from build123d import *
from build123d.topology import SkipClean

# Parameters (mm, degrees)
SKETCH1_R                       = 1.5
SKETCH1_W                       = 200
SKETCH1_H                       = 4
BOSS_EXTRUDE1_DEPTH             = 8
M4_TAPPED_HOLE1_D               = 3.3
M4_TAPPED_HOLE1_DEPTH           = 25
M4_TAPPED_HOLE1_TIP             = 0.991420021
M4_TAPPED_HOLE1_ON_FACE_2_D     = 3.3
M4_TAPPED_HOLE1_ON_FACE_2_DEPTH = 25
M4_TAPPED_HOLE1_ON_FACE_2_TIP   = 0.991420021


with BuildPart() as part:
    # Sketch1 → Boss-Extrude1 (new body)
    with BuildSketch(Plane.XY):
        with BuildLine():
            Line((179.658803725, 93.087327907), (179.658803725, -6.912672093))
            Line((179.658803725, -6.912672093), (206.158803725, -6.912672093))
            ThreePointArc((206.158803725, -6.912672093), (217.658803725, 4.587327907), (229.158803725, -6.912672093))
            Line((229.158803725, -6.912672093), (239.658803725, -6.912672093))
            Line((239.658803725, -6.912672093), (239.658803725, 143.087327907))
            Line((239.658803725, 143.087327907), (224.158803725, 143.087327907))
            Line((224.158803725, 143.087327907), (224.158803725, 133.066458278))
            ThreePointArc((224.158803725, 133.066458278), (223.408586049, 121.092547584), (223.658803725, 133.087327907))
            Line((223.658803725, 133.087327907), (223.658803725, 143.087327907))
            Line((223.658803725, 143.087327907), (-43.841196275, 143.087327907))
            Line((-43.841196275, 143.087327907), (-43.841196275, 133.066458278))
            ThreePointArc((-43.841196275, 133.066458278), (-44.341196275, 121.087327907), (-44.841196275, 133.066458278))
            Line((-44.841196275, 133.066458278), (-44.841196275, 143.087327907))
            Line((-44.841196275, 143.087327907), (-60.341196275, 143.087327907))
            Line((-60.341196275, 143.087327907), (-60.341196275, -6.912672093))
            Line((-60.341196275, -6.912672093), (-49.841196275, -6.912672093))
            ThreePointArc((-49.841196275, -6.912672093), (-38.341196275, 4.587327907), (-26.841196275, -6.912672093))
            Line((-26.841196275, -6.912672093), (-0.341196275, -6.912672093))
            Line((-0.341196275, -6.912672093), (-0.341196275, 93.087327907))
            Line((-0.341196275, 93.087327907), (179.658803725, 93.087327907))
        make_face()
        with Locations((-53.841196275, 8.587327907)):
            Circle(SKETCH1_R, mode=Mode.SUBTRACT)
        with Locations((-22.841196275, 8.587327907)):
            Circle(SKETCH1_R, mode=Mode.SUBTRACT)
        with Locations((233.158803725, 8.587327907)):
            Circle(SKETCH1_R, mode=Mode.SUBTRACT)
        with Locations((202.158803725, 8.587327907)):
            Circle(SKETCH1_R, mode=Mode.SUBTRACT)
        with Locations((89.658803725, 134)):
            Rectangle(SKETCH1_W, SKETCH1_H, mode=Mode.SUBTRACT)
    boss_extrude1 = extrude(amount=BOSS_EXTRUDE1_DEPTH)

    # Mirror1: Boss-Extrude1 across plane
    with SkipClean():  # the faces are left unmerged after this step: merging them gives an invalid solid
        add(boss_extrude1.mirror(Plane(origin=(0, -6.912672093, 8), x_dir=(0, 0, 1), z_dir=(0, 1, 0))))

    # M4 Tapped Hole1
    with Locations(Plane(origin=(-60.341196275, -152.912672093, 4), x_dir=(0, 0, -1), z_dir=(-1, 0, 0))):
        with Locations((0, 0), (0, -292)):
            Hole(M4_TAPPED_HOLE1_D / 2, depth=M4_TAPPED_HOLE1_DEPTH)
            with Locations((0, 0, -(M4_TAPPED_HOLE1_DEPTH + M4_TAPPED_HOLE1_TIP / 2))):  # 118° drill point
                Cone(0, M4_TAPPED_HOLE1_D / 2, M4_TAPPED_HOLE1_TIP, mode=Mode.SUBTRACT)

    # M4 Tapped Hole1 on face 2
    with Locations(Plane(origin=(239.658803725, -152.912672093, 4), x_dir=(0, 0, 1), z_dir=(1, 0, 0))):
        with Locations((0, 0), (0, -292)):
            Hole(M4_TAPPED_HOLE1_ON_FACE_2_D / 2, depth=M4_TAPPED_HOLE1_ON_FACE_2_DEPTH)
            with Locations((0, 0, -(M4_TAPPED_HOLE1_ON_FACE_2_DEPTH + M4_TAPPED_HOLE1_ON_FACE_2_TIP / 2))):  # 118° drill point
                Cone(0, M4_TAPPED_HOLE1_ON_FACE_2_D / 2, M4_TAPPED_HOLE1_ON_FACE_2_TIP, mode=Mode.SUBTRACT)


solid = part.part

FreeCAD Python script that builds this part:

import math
import FreeCAD as App
import Part
import Sketcher
from FreeCAD import Vector
Q = App.Units.Quantity


def add_polygon(sketch, points):
    """Adds a closed chain of lines whose ends are joined by coincident constraints."""
    first, n = sketch.GeometryCount, len(points)
    for a, b in zip(points, points[1:] + points[:1]):
        sketch.addGeometry(Part.LineSegment(App.Vector(*a, 0), App.Vector(*b, 0)), False)
    for i in range(n):
        sketch.addConstraint(Sketcher.Constraint("Coincident", first + i, 2, first + (i + 1) % n, 1))

doc = App.newDocument("Part")
body = doc.addObject("PartDesign::Body", "Body")

# Sketch on XY plane
sketch1 = doc.addObject("Sketcher::SketchObject", "Sketch")
body.addObject(sketch1)
sketch1.AttachmentSupport = (doc.XY_Plane, [""])
sketch1.MapMode = "FlatFace"
sketch1.addGeometry(Part.LineSegment(Vector(179.7, 93.1, 0), Vector(179.7, -6.9, 0)), False)  # 0
sketch1.addGeometry(Part.LineSegment(Vector(179.7, -6.9, 0), Vector(206.2, -6.9, 0)), False)  # 1
sketch1.addGeometry(Part.ArcOfCircle(Part.Circle(Vector(217.7, -6.9, 0), Vector(0, 0, 1), 11.5), math.radians(0), math.radians(180)), False)  # 2
sketch1.addGeometry(Part.LineSegment(Vector(229.2, -6.9, 0), Vector(239.7, -6.9, 0)), False)  # 3
sketch1.addGeometry(Part.LineSegment(Vector(239.7, -6.9, 0), Vector(239.7, 143.1, 0)), False)  # 4
sketch1.addGeometry(Part.LineSegment(Vector(239.7, 143.1, 0), Vector(224.2, 143.1, 0)), False)  # 5
sketch1.addGeometry(Part.LineSegment(Vector(224.2, 143.1, 0), Vector(224.2, 133.1, 0)), False)  # 6
sketch1.addGeometry(Part.ArcOfCircle(Part.Circle(Vector(223.7, 127.1, 0), Vector(0, 0, 1), 6), math.radians(90), math.radians(445)), False)  # 7
sketch1.addGeometry(Part.LineSegment(Vector(223.7, 133.1, 0), Vector(223.7, 143.1, 0)), False)  # 8
sketch1.addGeometry(Part.LineSegment(Vector(223.7, 143.1, 0), Vector(-43.8, 143.1, 0)), False)  # 9
sketch1.addGeometry(Part.LineSegment(Vector(-43.8, 143.1, 0), Vector(-43.8, 133.1, 0)), False)  # 10
sketch1.addGeometry(Part.ArcOfCircle(Part.Circle(Vector(-44.3, 127.1, 0), Vector(0, 0, 1), 6), math.radians(95), math.radians(445)), False)  # 11
sketch1.addGeometry(Part.LineSegment(Vector(-44.8, 133.1, 0), Vector(-44.8, 143.1, 0)), False)  # 12
sketch1.addGeometry(Part.LineSegment(Vector(-44.8, 143.1, 0), Vector(-60.3, 143.1, 0)), False)  # 13
sketch1.addGeometry(Part.LineSegment(Vector(-60.3, 143.1, 0), Vector(-60.3, -6.9, 0)), False)  # 14
sketch1.addGeometry(Part.LineSegment(Vector(-60.3, -6.9, 0), Vector(-49.8, -6.9, 0)), False)  # 15
sketch1.addGeometry(Part.ArcOfCircle(Part.Circle(Vector(-38.3, -6.9, 0), Vector(0, 0, 1), 11.5), math.radians(0), math.radians(180)), False)  # 16
sketch1.addGeometry(Part.LineSegment(Vector(-26.8, -6.9, 0), Vector(-0.3, -6.9, 0)), False)  # 17
sketch1.addGeometry(Part.LineSegment(Vector(-0.3, -6.9, 0), Vector(-0.3, 93.1, 0)), False)  # 18
sketch1.addGeometry(Part.LineSegment(Vector(-0.3, 93.1, 0), Vector(179.7, 93.1, 0)), False)  # 19
sketch1.addGeometry(Part.Circle(Vector(-53.8, 8.6, 0), Vector(0, 0, 1), 1.5), False)  # 20
sketch1.addGeometry(Part.Circle(Vector(-22.8, 8.6, 0), Vector(0, 0, 1), 1.5), False)  # 21
sketch1.addGeometry(Part.Circle(Vector(202.2, 8.6, 0), Vector(0, 0, 1), 1.5), False)  # 22
sketch1.addGeometry(Part.Circle(Vector(233.2, 8.6, 0), Vector(0, 0, 1), 1.5), False)  # 23
add_polygon(sketch1, [(189.7, 132), (-10.3, 132), (-10.3, 136), (189.7, 136)])  # lines 24-27
sketch1.addConstraint([
    Sketcher.Constraint("Coincident", 0, 2, 1, 1),
    Sketcher.Constraint("Coincident", 1, 2, 2, 2),
    Sketcher.Constraint("Coincident", 2, 1, 3, 1),
    Sketcher.Constraint("Coincident", 3, 2, 4, 1),
    Sketcher.Constraint("Coincident", 4, 2, 5, 1),
    Sketcher.Constraint("Coincident", 5, 2, 6, 1),
    Sketcher.Constraint("Coincident", 6, 2, 7, 2),
    Sketcher.Constraint("Coincident", 7, 1, 8, 1),
    Sketcher.Constraint("Coincident", 8, 2, 9, 1),
    Sketcher.Constraint("Coincident", 9, 2, 10, 1),
    Sketcher.Constraint("Coincident", 10, 2, 11, 2),
    Sketcher.Constraint("Coincident", 11, 1, 12, 1),
    Sketcher.Constraint("Coincident", 12, 2, 13, 1),
    Sketcher.Constraint("Coincident", 13, 2, 14, 1),
    Sketcher.Constraint("Coincident", 14, 2, 15, 1),
    Sketcher.Constraint("Coincident", 15, 2, 16, 2),
    Sketcher.Constraint("Coincident", 16, 1, 17, 1),
    Sketcher.Constraint("Coincident", 17, 2, 18, 1),
    Sketcher.Constraint("Coincident", 18, 2, 19, 1),
    Sketcher.Constraint("Coincident", 19, 2, 0, 1),
    Sketcher.Constraint("Vertical", 0),
    Sketcher.Constraint("Horizontal", 1),
    Sketcher.Constraint("Horizontal", 3),
    Sketcher.Constraint("Vertical", 4),
    Sketcher.Constraint("Horizontal", 5),
    Sketcher.Constraint("Vertical", 6),
    Sketcher.Constraint("Vertical", 8),
    Sketcher.Constraint("Horizontal", 9),
    Sketcher.Constraint("Vertical", 10),
    Sketcher.Constraint("Vertical", 12),
    Sketcher.Constraint("Horizontal", 13),
    Sketcher.Constraint("Vertical", 14),
    Sketcher.Constraint("Horizontal", 15),
    Sketcher.Constraint("Horizontal", 17),
    Sketcher.Constraint("Vertical", 18),
    Sketcher.Constraint("Horizontal", 19),
    Sketcher.Constraint("Horizontal", 24),
    Sketcher.Constraint("Vertical", 25),
    Sketcher.Constraint("Horizontal", 26),
    Sketcher.Constraint("Vertical", 27),
    Sketcher.Constraint("Equal", 7, 11),
    Sketcher.Constraint("Equal", 2, 16),
    Sketcher.Constraint("Equal", 20, 21),
    Sketcher.Constraint("Equal", 21, 22),
    Sketcher.Constraint("Equal", 22, 23),
    Sketcher.Constraint("Horizontal", 7, 3, 11, 3),
    Sketcher.Constraint("Horizontal", 2, 3, 16, 3),
    Sketcher.Constraint("Horizontal", 20, 3, 21, 3),
    Sketcher.Constraint("Horizontal", 21, 3, 22, 3),
    Sketcher.Constraint("Horizontal", 22, 3, 23, 3),
    Sketcher.Constraint("Horizontal", 16, 3, 0, 2),
    Sketcher.Constraint("Horizontal", 1, 2, 2, 1),
    Sketcher.Constraint("Horizontal", 5, 2, 8, 2),
    Sketcher.Constraint("Horizontal", 6, 2, 10, 2),
    Sketcher.Constraint("Horizontal", 10, 2, 11, 1),
    Sketcher.Constraint("Horizontal", 9, 2, 12, 2),
    Sketcher.Constraint("Horizontal", 3, 2, 14, 2),
    Sketcher.Constraint("Horizontal", 15, 2, 16, 1),
    Sketcher.Constraint("Equal", 5, 13),
    Sketcher.Constraint("Equal", 3, 15),
    Sketcher.Constraint("Equal", 1, 17),
    Sketcher.Constraint("Diameter", 20, Q("3 mm")),
    Sketcher.Constraint("Radius", 7, Q("6 mm")),
    Sketcher.Constraint("Radius", 2, Q("11.5 mm")),
    Sketcher.Constraint("DistanceX", 19, 1, 19, 2, Q("180 mm")),
    Sketcher.Constraint("DistanceX", 24, 2, 24, 1, Q("200 mm")),
    Sketcher.Constraint("DistanceY", 0, 2, 0, 1, Q("100 mm")),
    Sketcher.Constraint("DistanceY", 4, 1, 4, 2, Q("150 mm")),
    Sketcher.Constraint("DistanceY", 8, 1, 8, 2, Q("10 mm")),
    Sketcher.Constraint("DistanceY", 25, 1, 25, 2, Q("4 mm")),
    Sketcher.Constraint("DistanceX", 1, 1, 1, 2, Q("26.5 mm")),
    Sketcher.Constraint("DistanceX", 3, 1, 3, 2, Q("10.5 mm")),
    Sketcher.Constraint("DistanceX", 5, 2, 5, 1, Q("15.5 mm")),
    Sketcher.Constraint("DistanceX", 9, 2, 9, 1, Q("267.5 mm")),
    Sketcher.Constraint("DistanceY", -1, 1, 24, 2, Q("132 mm")),
    Sketcher.Constraint("DistanceX", 2, 3, 7, 3, Q("6 mm")),
    Sketcher.Constraint("DistanceX", 20, 3, 21, 3, Q("31 mm")),
    Sketcher.Constraint("DistanceX", 21, 3, 22, 3, Q("225 mm")),
    Sketcher.Constraint("DistanceX", 22, 3, 23, 3, Q("31 mm")),
    Sketcher.Constraint("DistanceX", 22, 3, 1, 2, Q("4 mm")),
    Sketcher.Constraint("DistanceX", 11, 3, 24, 2, Q("34 mm")),
    Sketcher.Constraint("DistanceY", 16, 3, 20, 3, Q("15.5 mm")),
    Sketcher.Constraint("DistanceY", -1, 1, 6, 2, Q("133.066458 mm")),
    Sketcher.Constraint("DistanceX", -1, 1, 2, 3, Q("217.658804 mm")),
])
pad1 = doc.addObject("PartDesign::Pad", "Pad")
body.addObject(pad1)
pad1.Profile = sketch1
pad1.Length = 8
doc.recompute()

datumplane = doc.addObject("PartDesign::Plane", "DatumPlane")
body.addObject(datumplane)
datumplane.AttachmentSupport = (doc.XZ_Plane, [""])
datumplane.MapMode = "FlatFace"
datumplane.AttachmentOffset = App.Placement(Vector(0, 0, 6.912672), App.Rotation())
mirrored = doc.addObject("PartDesign::Mirrored", "Mirrored")
body.addObject(mirrored)
mirrored.Originals = [pad1]
mirrored.MirrorPlane = (datumplane, [""])
body.Tip = mirrored

# Sketch on YZ plane
sketch2 = doc.addObject("Sketcher::SketchObject", "Sketch001")
body.addObject(sketch2)
sketch2.AttachmentSupport = (doc.YZ_Plane, [""])
sketch2.MapMode = "FlatFace"
sketch2.AttachmentOffset = App.Placement(Vector(0, 0, -60.341196), App.Rotation())
sketch2.addGeometry([
    Part.Circle(Vector(-152.9, 4, 0), Vector(0, 0, 1), 1.6),
    Part.Circle(Vector(139.1, 4, 0), Vector(0, 0, 1), 1.6),
], False)
sketch2.addConstraint([
    Sketcher.Constraint("Equal", 0, 1),
    Sketcher.Constraint("Horizontal", 0, 3, 1, 3),
    Sketcher.Constraint("Diameter", 0, Q("3.3 mm")),
    Sketcher.Constraint("DistanceY", -1, 1, 0, 3, Q("4 mm")),
    Sketcher.Constraint("DistanceX", 0, 3, 1, 3, Q("292 mm")),
    Sketcher.Constraint("DistanceX", 0, 3, -1, 1, Q("152.912672 mm")),
])
doc.recompute()
hole = doc.addObject("PartDesign::Hole", "Hole")
body.addObject(hole)
hole.Profile = sketch2
hole.ThreadType = "None"
hole.Diameter = 3.3
hole.DepthType = "Dimension"
hole.Depth = 25
hole.DrillPoint = "Angled"
hole.DrillPointAngle = 118
hole.Reversed = True

# Sketch on YZ plane
sketch3 = doc.addObject("Sketcher::SketchObject", "Sketch002")
body.addObject(sketch3)
sketch3.AttachmentSupport = (doc.YZ_Plane, [""])
sketch3.MapMode = "FlatFace"
sketch3.AttachmentOffset = App.Placement(Vector(0, 0, 239.658804), App.Rotation())
sketch3.addGeometry([
    Part.Circle(Vector(-152.9, 4, 0), Vector(0, 0, 1), 1.6),
    Part.Circle(Vector(139.1, 4, 0), Vector(0, 0, 1), 1.6),
], False)
sketch3.addConstraint([
    Sketcher.Constraint("Equal", 0, 1),
    Sketcher.Constraint("Horizontal", 0, 3, 1, 3),
    Sketcher.Constraint("Diameter", 0, Q("3.3 mm")),
    Sketcher.Constraint("DistanceY", -1, 1, 0, 3, Q("4 mm")),
    Sketcher.Constraint("DistanceX", 0, 3, 1, 3, Q("292 mm")),
    Sketcher.Constraint("DistanceX", 0, 3, -1, 1, Q("152.912672 mm")),
])
doc.recompute()
hole2 = doc.addObject("PartDesign::Hole", "Hole001")
body.addObject(hole2)
hole2.Profile = sketch3
hole2.ThreadType = "None"
hole2.Diameter = 3.3
hole2.DepthType = "Dimension"
hole2.Depth = 25
hole2.DrillPoint = "Angled"
hole2.DrillPointAngle = 118

doc.recompute()
